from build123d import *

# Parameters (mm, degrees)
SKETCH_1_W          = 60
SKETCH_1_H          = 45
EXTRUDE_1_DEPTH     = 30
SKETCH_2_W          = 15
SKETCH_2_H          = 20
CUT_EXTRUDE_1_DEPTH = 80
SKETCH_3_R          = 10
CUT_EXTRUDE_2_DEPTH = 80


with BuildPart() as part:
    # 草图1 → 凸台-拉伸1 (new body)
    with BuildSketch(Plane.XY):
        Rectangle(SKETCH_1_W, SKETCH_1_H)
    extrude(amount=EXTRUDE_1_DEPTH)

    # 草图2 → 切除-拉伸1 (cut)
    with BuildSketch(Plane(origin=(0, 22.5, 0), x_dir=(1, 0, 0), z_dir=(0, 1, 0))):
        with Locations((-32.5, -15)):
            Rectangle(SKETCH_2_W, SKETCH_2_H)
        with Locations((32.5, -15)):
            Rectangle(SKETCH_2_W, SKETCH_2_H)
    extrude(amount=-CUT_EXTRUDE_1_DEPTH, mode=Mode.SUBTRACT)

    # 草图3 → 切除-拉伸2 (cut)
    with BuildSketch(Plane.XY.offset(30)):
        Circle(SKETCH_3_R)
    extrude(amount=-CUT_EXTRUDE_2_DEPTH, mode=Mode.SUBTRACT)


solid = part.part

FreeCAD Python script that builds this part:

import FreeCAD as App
import Part
import Sketcher
from FreeCAD import Vector

doc = App.newDocument("Part")
params = doc.addObject("Spreadsheet::Sheet", "Params")
for row, (alias, value) in enumerate([
    ("sketch1_width", "60 mm"),
    ("sketch1_height", "45 mm"),
    ("pad1_length", "30 mm"),
    ("sketch2_width", "15 mm"),
    ("sketch2_height", "20 mm"),
    ("pocket1_length", "80 mm"),
    ("sketch3_diameter", "20 mm"),
    ("pocket2_length", "80 mm"),
], start=1):
    params.set(f"A{row}", alias)
    params.set(f"B{row}", "=" + value)
    params.setAlias(f"B{row}", alias)

body = doc.addObject("PartDesign::Body", "Body")

# Sketch on XY plane
sketch1 = doc.addObject("Sketcher::SketchObject", "Sketch")
body.addObject(sketch1)
sketch1.AttachmentSupport = (doc.XY_Plane, [""])
sketch1.MapMode = "FlatFace"
sketch1.addGeometry([
    Part.LineSegment(Vector(-30, 22, 0), Vector(-30, -22, 0)),
    Part.LineSegment(Vector(-30, -22, 0), Vector(30, -22, 0)),
    Part.LineSegment(Vector(30, -22, 0), Vector(30, 22, 0)),
    Part.LineSegment(Vector(30, 22, 0), Vector(-30, 22, 0)),
], False)
sketch1.addConstraint([
    Sketcher.Constraint("Coincident", 0, 2, 1, 1),
    Sketcher.Constraint("Coincident", 1, 2, 2, 1),
    Sketcher.Constraint("Coincident", 2, 2, 3, 1),
    Sketcher.Constraint("Coincident", 3, 2, 0, 1),
    Sketcher.Constraint("Vertical", 0),
    Sketcher.Constraint("Horizontal", 1),
    Sketcher.Constraint("Vertical", 2),
    Sketcher.Constraint("Horizontal", 3),
    Sketcher.Constraint("Symmetric", 0, 2, 2, 2, -1, 1),
    Sketcher.Constraint("DistanceX", 1, 1, 1, 2, 60.0),
    Sketcher.Constraint("DistanceY", 0, 2, 0, 1, 45.0),
])
sketch1.setExpression("Constraints[9]", "Params.sketch1_width")
sketch1.setExpression("Constraints[10]", "Params.sketch1_height")
pad1 = doc.addObject("PartDesign::Pad", "Pad")
body.addObject(pad1)
pad1.Profile = sketch1
pad1.setExpression("Length", "Params.pad1_length")

# Sketch on XZ plane
sketch2 = doc.addObject("Sketcher::SketchObject", "Sketch001")
body.addObject(sketch2)
sketch2.AttachmentSupport = (doc.XZ_Plane, [""])
sketch2.MapMode = "FlatFace"
sketch2.AttachmentOffset = App.Placement(Vector(0, 0, -22.5), App.Rotation())
sketch2.addGeometry([
    Part.LineSegment(Vector(-40, 5, 0), Vector(-40, 25, 0)),  # 0
    Part.LineSegment(Vector(-40, 25, 0), Vector(-25, 25, 0)),  # 1
    Part.LineSegment(Vector(-25, 25, 0), Vector(-25, 5, 0)),  # 2
    Part.LineSegment(Vector(-25, 5, 0), Vector(-40, 5, 0)),  # 3
    Part.LineSegment(Vector(25, 5, 0), Vector(25, 25, 0)),  # 4
    Part.LineSegment(Vector(25, 25, 0), Vector(40, 25, 0)),  # 5
    Part.LineSegment(Vector(40, 25, 0), Vector(40, 5, 0)),  # 6
    Part.LineSegment(Vector(40, 5, 0), Vector(25, 5, 0)),  # 7
], False)
sketch2.addConstraint([
    Sketcher.Constraint("Coincident", 0, 2, 1, 1),
    Sketcher.Constraint("Coincident", 1, 2, 2, 1),
    Sketcher.Constraint("Coincident", 2, 2, 3, 1),
    Sketcher.Constraint("Coincident", 3, 2, 0, 1),
    Sketcher.Constraint("Coincident", 4, 2, 5, 1),
    Sketcher.Constraint("Coincident", 5, 2, 6, 1),
    Sketcher.Constraint("Coincident", 6, 2, 7, 1),
    Sketcher.Constraint("Coincident", 7, 2, 4, 1),
    Sketcher.Constraint("Vertical", 0),
    Sketcher.Constraint("Horizontal", 1),
    Sketcher.Constraint("Vertical", 2),
    Sketcher.Constraint("Horizontal", 3),
    Sketcher.Constraint("Vertical", 4),
    Sketcher.Constraint("Horizontal", 5),
    Sketcher.Constraint("Vertical", 6),
    Sketcher.Constraint("Horizontal", 7),
    Sketcher.Constraint("Symmetric", 1, 2, 4, 2, -2),
    Sketcher.Constraint("Symmetric", 3, 2, 6, 2, -2),
    Sketcher.Constraint("DistanceX", 1, 1, 1, 2, 15.0),
    Sketcher.Constraint("DistanceY", 0, 1, 0, 2, 20.0),
    Sketcher.Constraint("DistanceX", 0, 2, -1, 1, 40.0),
    Sketcher.Constraint("DistanceY", -1, 1, 0, 2, 25.0),
])
sketch2.setExpression("Constraints[18]", "Params.sketch2_width")
sketch2.setExpression("Constraints[19]", "Params.sketch2_height")
pocket1 = doc.addObject("PartDesign::Pocket", "Pocket")
body.addObject(pocket1)
pocket1.Profile = sketch2
pocket1.setExpression("Length", "Params.pocket1_length")
pocket1.Reversed = True

# Sketch on XY plane
sketch3 = doc.addObject("Sketcher::SketchObject", "Sketch002")
body.addObject(sketch3)
sketch3.AttachmentSupport = (doc.XY_Plane, [""])
sketch3.MapMode = "FlatFace"
sketch3.AttachmentOffset = App.Placement(Vector(0, 0, 30), App.Rotation())
sketch3.addGeometry(Part.Circle(Vector(0, 0, 0), Vector(0, 0, 1), 10), False)
sketch3.addConstraint([
    Sketcher.Constraint("Coincident", 0, 3, -1, 1),
    Sketcher.Constraint("Diameter", 0, 20.0),
])
sketch3.setExpression("Constraints[1]", "Params.sketch3_diameter")
pocket2 = doc.addObject("PartDesign::Pocket", "Pocket001")
body.addObject(pocket2)
pocket2.Profile = sketch3
pocket2.setExpression("Length", "Params.pocket2_length")

doc.recompute()
